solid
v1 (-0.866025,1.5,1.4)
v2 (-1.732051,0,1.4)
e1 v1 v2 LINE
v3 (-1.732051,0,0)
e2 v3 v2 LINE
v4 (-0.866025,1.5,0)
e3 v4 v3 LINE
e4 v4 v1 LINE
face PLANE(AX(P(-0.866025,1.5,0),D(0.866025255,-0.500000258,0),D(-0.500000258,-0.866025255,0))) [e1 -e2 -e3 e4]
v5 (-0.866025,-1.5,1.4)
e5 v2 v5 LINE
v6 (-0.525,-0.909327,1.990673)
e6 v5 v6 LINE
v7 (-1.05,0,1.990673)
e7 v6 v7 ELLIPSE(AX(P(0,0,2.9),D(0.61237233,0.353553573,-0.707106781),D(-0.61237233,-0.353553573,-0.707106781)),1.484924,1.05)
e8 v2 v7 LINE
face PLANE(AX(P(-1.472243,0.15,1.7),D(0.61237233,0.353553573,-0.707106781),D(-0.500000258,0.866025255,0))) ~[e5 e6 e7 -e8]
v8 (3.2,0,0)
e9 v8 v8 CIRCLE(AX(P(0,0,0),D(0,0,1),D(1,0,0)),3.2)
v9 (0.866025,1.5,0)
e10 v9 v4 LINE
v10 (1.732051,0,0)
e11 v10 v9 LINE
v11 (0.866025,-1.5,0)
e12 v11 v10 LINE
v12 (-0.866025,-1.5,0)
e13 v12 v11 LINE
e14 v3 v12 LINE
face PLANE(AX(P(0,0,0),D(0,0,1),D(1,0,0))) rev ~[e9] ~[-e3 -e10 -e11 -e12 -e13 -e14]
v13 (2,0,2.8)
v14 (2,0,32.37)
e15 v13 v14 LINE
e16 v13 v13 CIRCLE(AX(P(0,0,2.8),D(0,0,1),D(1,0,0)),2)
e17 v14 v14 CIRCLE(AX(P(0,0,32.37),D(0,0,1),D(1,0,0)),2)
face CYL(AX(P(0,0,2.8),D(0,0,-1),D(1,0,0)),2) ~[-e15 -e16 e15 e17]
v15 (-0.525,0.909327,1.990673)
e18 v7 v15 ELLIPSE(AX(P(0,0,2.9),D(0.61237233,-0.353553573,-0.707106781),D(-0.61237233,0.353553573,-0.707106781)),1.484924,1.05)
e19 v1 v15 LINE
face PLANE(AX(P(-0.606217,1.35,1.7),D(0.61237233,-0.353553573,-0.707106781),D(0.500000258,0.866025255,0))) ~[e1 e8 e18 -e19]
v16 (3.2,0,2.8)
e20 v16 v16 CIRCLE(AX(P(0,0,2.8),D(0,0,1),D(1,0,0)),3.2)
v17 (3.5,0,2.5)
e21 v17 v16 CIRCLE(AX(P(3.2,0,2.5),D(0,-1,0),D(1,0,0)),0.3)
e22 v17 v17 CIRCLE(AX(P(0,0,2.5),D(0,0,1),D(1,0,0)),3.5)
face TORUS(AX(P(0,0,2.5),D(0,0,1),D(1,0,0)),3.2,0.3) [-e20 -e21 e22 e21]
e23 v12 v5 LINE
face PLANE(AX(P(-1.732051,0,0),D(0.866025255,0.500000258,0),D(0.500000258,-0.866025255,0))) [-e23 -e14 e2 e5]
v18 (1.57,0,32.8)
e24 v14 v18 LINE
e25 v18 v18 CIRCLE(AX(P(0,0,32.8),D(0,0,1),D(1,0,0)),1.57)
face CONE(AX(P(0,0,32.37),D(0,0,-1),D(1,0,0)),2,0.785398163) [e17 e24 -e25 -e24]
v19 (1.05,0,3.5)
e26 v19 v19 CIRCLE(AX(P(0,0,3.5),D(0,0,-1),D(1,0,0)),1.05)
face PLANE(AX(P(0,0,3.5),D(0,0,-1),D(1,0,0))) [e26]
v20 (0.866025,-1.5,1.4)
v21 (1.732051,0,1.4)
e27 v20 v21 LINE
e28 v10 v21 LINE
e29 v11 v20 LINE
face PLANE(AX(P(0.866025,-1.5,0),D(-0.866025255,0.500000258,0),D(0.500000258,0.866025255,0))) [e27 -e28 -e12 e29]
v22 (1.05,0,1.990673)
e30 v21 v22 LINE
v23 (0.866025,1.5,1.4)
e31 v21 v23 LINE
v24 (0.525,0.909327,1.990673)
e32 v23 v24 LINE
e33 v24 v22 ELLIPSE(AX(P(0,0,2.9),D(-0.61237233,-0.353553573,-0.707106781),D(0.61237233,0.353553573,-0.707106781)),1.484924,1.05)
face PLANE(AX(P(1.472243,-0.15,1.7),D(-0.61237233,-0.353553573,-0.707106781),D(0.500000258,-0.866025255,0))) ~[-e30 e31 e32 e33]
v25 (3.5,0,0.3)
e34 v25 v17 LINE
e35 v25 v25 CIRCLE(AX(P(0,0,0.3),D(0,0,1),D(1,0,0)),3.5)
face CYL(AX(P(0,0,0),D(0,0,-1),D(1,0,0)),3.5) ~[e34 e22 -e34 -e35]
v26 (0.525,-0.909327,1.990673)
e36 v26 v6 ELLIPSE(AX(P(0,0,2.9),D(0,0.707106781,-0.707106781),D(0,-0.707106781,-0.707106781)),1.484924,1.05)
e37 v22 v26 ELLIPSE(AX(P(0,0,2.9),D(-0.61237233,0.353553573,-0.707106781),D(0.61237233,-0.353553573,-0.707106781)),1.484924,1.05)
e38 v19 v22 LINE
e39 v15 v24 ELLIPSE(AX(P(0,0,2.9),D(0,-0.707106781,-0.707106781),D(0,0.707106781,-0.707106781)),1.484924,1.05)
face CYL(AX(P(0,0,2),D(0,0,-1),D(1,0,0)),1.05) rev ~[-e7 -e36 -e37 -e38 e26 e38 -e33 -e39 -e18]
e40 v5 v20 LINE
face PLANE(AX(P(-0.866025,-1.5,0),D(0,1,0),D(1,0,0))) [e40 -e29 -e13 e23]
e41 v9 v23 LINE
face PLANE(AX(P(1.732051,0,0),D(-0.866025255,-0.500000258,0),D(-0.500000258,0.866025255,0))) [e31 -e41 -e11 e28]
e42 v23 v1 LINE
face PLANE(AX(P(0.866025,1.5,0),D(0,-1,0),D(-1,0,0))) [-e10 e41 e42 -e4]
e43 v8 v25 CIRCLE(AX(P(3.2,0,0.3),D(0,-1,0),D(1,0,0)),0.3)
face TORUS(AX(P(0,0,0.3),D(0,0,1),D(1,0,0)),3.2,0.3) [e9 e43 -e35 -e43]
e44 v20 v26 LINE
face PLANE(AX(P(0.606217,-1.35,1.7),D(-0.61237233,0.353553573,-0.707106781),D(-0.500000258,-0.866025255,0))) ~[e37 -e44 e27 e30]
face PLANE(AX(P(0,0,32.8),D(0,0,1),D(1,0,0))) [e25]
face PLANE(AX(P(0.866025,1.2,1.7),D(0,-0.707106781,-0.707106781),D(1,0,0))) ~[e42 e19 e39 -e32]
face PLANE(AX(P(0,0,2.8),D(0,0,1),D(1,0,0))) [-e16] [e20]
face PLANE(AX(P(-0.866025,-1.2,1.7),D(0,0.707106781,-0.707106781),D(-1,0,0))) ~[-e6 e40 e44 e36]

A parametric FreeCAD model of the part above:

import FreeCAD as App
import Part
import Sketcher
Q = App.Units.Quantity


def edges_at(feature, points):
    """Names of the edges that pass closest to the given points."""
    edges = feature.Shape.Edges
    near = lambda p: min(range(len(edges)), key=lambda i: edges[i].distToShape(Part.Vertex(*p))[0])
    return sorted({f"Edge{near(p) + 1}" for p in points})


def add_polygon(sketch, points):
    """Adds a closed chain of lines whose ends are joined by coincident constraints."""
    first, n = sketch.GeometryCount, len(points)
    for a, b in zip(points, points[1:] + points[:1]):
        sketch.addGeometry(Part.LineSegment(App.Vector(*a, 0), App.Vector(*b, 0)), False)
    for i in range(n):
        sketch.addConstraint(Sketcher.Constraint("Coincident", first + i, 2, first + (i + 1) % n, 1))

doc = App.newDocument("Part")
params = doc.addObject("Spreadsheet::Sheet", "Params")
for row, (alias, value) in enumerate([
    ("sketch1_diameter", "7 mm"),
    ("pad1_length", "2.8 mm"),
    ("sketch2_diameter", "4 mm"),
    ("pad2_length", "30 mm"),
    ("chamfer_size", "0.43 mm"),
    ("pocket1_length", "2 mm"),
    ("chamfer2_size", "0.6 mm"),
    ("sketch4_diameter", "2.1 mm"),
    ("pocket2_length", "3 mm"),
    ("fillet_radius", "0.3 mm"),
], start=1):
    params.set(f"A{row}", alias)
    params.set(f"B{row}", "=" + value)
    params.setAlias(f"B{row}", alias)

body = doc.addObject("PartDesign::Body", "Body")

# Sketch on XY plane
sketch1 = doc.addObject("Sketcher::SketchObject", "Sketch")
body.addObject(sketch1)
sketch1.AttachmentSupport = (doc.XY_Plane, [""])
sketch1.MapMode = "FlatFace"
sketch1.addGeometry(Part.Circle(App.Vector(0, 0, 0), App.Vector(0, 0, 1), 3.5), False)
sketch1.addConstraint([
    Sketcher.Constraint("Coincident", 0, 3, -1, 1),
    Sketcher.Constraint("Diameter", 0, 7.0),
])
sketch1.setExpression("Constraints[1]", "Params.sketch1_diameter")
pad1 = doc.addObject("PartDesign::Pad", "Pad")
body.addObject(pad1)
pad1.Profile = sketch1
pad1.setExpression("Length", "Params.pad1_length")

# Sketch on XY plane
sketch2 = doc.addObject("Sketcher::SketchObject", "Sketch001")
body.addObject(sketch2)
sketch2.AttachmentSupport = (doc.XY_Plane, [""])
sketch2.MapMode = "FlatFace"
sketch2.AttachmentOffset = App.Placement(App.Vector(0, 0, 2.8), App.Rotation())
sketch2.addGeometry(Part.Circle(App.Vector(0, 0, 0), App.Vector(0, 0, 1), 2), False)
sketch2.addConstraint([
    Sketcher.Constraint("Coincident", 0, 3, -1, 1),
    Sketcher.Constraint("Diameter", 0, 4.0),
])
sketch2.setExpression("Constraints[1]", "Params.sketch2_diameter")
pad2 = doc.addObject("PartDesign::Pad", "Pad001")
body.addObject(pad2)
pad2.Profile = sketch2
pad2.setExpression("Length", "Params.pad2_length")
doc.recompute()

chamfer = doc.addObject("PartDesign::Chamfer", "Chamfer")
body.addObject(chamfer)
chamfer.Base = (pad2, edges_at(pad2, [(-2, 0, 32.8)]))
chamfer.setExpression("Size", "Params.chamfer_size")

# Sketch on XY plane
sketch3 = doc.addObject("Sketcher::SketchObject", "Sketch002")
body.addObject(sketch3)
sketch3.AttachmentSupport = (doc.XY_Plane, [""])
sketch3.MapMode = "FlatFace"
add_polygon(sketch3, [(0.9, -1.5), (-0.9, -1.5), (-1.7, 0), (-0.9, 1.5), (0.9, 1.5), (1.7, 0)])  # lines 0-5
sketch3.addConstraint([
    Sketcher.Constraint("Horizontal", 0),
    Sketcher.Constraint("Horizontal", 3),
    Sketcher.Constraint("Symmetric", 0, 2, 3, 2, -1, 1),
    Sketcher.Constraint("Symmetric", 1, 2, 4, 2, -1, 1),
    Sketcher.Constraint("PointOnObject", 1, 2, -1),
    Sketcher.Constraint("Parallel", 2, 5),
    Sketcher.Constraint("Vertical", 0, 2, 2, 2),
    Sketcher.Constraint("Angle", 1, Q("120.000017 deg")),
    Sketcher.Constraint("DistanceY", 0, 2, 2, 2, 3.0),
    Sketcher.Constraint("DistanceX", 0, 2, 0, 1, 1.73205),
])
pocket1 = doc.addObject("PartDesign::Pocket", "Pocket")
body.addObject(pocket1)
pocket1.Profile = sketch3
pocket1.setExpression("Length", "Params.pocket1_length")
pocket1.Reversed = True
doc.recompute()

chamfer2 = doc.addObject("PartDesign::Chamfer", "Chamfer001")
body.addObject(chamfer2)
chamfer2.Base = (pocket1, edges_at(pocket1, [
    (0, -1.5, 2),
    (1.299, -0.75, 2),
    (1.299, 0.75, 2),
    (0, 1.5, 2),
    (-1.299, 0.75, 2),
    (-1.299, -0.75, 2),
]))
chamfer2.setExpression("Size", "Params.chamfer2_size")

# Sketch on XY plane
sketch4 = doc.addObject("Sketcher::SketchObject", "Sketch003")
body.addObject(sketch4)
sketch4.AttachmentSupport = (doc.XY_Plane, [""])
sketch4.MapMode = "FlatFace"
sketch4.AttachmentOffset = App.Placement(App.Vector(0, 0, 2), App.Rotation())
sketch4.addGeometry(Part.Circle(App.Vector(0, 0, 0), App.Vector(0, 0, 1), 1.1), False)
sketch4.addConstraint([
    Sketcher.Constraint("Coincident", 0, 3, -1, 1),
    Sketcher.Constraint("Diameter", 0, 2.1),
])
sketch4.setExpression("Constraints[1]", "Params.sketch4_diameter")
pocket2 = doc.addObject("PartDesign::Pocket", "Pocket001")
body.addObject(pocket2)
pocket2.Profile = sketch4
pocket2.setExpression("Length", "Params.pocket2_length")
pocket2.Midplane = True
doc.recompute()

fillet = doc.addObject("PartDesign::Fillet", "Fillet")
body.addObject(fillet)
fillet.Base = (pocket2, edges_at(pocket2, [(-3.5, 0, 0), (-3.5, 0, 2.8)]))
fillet.setExpression("Radius", "Params.fillet_radius")

doc.recompute()
